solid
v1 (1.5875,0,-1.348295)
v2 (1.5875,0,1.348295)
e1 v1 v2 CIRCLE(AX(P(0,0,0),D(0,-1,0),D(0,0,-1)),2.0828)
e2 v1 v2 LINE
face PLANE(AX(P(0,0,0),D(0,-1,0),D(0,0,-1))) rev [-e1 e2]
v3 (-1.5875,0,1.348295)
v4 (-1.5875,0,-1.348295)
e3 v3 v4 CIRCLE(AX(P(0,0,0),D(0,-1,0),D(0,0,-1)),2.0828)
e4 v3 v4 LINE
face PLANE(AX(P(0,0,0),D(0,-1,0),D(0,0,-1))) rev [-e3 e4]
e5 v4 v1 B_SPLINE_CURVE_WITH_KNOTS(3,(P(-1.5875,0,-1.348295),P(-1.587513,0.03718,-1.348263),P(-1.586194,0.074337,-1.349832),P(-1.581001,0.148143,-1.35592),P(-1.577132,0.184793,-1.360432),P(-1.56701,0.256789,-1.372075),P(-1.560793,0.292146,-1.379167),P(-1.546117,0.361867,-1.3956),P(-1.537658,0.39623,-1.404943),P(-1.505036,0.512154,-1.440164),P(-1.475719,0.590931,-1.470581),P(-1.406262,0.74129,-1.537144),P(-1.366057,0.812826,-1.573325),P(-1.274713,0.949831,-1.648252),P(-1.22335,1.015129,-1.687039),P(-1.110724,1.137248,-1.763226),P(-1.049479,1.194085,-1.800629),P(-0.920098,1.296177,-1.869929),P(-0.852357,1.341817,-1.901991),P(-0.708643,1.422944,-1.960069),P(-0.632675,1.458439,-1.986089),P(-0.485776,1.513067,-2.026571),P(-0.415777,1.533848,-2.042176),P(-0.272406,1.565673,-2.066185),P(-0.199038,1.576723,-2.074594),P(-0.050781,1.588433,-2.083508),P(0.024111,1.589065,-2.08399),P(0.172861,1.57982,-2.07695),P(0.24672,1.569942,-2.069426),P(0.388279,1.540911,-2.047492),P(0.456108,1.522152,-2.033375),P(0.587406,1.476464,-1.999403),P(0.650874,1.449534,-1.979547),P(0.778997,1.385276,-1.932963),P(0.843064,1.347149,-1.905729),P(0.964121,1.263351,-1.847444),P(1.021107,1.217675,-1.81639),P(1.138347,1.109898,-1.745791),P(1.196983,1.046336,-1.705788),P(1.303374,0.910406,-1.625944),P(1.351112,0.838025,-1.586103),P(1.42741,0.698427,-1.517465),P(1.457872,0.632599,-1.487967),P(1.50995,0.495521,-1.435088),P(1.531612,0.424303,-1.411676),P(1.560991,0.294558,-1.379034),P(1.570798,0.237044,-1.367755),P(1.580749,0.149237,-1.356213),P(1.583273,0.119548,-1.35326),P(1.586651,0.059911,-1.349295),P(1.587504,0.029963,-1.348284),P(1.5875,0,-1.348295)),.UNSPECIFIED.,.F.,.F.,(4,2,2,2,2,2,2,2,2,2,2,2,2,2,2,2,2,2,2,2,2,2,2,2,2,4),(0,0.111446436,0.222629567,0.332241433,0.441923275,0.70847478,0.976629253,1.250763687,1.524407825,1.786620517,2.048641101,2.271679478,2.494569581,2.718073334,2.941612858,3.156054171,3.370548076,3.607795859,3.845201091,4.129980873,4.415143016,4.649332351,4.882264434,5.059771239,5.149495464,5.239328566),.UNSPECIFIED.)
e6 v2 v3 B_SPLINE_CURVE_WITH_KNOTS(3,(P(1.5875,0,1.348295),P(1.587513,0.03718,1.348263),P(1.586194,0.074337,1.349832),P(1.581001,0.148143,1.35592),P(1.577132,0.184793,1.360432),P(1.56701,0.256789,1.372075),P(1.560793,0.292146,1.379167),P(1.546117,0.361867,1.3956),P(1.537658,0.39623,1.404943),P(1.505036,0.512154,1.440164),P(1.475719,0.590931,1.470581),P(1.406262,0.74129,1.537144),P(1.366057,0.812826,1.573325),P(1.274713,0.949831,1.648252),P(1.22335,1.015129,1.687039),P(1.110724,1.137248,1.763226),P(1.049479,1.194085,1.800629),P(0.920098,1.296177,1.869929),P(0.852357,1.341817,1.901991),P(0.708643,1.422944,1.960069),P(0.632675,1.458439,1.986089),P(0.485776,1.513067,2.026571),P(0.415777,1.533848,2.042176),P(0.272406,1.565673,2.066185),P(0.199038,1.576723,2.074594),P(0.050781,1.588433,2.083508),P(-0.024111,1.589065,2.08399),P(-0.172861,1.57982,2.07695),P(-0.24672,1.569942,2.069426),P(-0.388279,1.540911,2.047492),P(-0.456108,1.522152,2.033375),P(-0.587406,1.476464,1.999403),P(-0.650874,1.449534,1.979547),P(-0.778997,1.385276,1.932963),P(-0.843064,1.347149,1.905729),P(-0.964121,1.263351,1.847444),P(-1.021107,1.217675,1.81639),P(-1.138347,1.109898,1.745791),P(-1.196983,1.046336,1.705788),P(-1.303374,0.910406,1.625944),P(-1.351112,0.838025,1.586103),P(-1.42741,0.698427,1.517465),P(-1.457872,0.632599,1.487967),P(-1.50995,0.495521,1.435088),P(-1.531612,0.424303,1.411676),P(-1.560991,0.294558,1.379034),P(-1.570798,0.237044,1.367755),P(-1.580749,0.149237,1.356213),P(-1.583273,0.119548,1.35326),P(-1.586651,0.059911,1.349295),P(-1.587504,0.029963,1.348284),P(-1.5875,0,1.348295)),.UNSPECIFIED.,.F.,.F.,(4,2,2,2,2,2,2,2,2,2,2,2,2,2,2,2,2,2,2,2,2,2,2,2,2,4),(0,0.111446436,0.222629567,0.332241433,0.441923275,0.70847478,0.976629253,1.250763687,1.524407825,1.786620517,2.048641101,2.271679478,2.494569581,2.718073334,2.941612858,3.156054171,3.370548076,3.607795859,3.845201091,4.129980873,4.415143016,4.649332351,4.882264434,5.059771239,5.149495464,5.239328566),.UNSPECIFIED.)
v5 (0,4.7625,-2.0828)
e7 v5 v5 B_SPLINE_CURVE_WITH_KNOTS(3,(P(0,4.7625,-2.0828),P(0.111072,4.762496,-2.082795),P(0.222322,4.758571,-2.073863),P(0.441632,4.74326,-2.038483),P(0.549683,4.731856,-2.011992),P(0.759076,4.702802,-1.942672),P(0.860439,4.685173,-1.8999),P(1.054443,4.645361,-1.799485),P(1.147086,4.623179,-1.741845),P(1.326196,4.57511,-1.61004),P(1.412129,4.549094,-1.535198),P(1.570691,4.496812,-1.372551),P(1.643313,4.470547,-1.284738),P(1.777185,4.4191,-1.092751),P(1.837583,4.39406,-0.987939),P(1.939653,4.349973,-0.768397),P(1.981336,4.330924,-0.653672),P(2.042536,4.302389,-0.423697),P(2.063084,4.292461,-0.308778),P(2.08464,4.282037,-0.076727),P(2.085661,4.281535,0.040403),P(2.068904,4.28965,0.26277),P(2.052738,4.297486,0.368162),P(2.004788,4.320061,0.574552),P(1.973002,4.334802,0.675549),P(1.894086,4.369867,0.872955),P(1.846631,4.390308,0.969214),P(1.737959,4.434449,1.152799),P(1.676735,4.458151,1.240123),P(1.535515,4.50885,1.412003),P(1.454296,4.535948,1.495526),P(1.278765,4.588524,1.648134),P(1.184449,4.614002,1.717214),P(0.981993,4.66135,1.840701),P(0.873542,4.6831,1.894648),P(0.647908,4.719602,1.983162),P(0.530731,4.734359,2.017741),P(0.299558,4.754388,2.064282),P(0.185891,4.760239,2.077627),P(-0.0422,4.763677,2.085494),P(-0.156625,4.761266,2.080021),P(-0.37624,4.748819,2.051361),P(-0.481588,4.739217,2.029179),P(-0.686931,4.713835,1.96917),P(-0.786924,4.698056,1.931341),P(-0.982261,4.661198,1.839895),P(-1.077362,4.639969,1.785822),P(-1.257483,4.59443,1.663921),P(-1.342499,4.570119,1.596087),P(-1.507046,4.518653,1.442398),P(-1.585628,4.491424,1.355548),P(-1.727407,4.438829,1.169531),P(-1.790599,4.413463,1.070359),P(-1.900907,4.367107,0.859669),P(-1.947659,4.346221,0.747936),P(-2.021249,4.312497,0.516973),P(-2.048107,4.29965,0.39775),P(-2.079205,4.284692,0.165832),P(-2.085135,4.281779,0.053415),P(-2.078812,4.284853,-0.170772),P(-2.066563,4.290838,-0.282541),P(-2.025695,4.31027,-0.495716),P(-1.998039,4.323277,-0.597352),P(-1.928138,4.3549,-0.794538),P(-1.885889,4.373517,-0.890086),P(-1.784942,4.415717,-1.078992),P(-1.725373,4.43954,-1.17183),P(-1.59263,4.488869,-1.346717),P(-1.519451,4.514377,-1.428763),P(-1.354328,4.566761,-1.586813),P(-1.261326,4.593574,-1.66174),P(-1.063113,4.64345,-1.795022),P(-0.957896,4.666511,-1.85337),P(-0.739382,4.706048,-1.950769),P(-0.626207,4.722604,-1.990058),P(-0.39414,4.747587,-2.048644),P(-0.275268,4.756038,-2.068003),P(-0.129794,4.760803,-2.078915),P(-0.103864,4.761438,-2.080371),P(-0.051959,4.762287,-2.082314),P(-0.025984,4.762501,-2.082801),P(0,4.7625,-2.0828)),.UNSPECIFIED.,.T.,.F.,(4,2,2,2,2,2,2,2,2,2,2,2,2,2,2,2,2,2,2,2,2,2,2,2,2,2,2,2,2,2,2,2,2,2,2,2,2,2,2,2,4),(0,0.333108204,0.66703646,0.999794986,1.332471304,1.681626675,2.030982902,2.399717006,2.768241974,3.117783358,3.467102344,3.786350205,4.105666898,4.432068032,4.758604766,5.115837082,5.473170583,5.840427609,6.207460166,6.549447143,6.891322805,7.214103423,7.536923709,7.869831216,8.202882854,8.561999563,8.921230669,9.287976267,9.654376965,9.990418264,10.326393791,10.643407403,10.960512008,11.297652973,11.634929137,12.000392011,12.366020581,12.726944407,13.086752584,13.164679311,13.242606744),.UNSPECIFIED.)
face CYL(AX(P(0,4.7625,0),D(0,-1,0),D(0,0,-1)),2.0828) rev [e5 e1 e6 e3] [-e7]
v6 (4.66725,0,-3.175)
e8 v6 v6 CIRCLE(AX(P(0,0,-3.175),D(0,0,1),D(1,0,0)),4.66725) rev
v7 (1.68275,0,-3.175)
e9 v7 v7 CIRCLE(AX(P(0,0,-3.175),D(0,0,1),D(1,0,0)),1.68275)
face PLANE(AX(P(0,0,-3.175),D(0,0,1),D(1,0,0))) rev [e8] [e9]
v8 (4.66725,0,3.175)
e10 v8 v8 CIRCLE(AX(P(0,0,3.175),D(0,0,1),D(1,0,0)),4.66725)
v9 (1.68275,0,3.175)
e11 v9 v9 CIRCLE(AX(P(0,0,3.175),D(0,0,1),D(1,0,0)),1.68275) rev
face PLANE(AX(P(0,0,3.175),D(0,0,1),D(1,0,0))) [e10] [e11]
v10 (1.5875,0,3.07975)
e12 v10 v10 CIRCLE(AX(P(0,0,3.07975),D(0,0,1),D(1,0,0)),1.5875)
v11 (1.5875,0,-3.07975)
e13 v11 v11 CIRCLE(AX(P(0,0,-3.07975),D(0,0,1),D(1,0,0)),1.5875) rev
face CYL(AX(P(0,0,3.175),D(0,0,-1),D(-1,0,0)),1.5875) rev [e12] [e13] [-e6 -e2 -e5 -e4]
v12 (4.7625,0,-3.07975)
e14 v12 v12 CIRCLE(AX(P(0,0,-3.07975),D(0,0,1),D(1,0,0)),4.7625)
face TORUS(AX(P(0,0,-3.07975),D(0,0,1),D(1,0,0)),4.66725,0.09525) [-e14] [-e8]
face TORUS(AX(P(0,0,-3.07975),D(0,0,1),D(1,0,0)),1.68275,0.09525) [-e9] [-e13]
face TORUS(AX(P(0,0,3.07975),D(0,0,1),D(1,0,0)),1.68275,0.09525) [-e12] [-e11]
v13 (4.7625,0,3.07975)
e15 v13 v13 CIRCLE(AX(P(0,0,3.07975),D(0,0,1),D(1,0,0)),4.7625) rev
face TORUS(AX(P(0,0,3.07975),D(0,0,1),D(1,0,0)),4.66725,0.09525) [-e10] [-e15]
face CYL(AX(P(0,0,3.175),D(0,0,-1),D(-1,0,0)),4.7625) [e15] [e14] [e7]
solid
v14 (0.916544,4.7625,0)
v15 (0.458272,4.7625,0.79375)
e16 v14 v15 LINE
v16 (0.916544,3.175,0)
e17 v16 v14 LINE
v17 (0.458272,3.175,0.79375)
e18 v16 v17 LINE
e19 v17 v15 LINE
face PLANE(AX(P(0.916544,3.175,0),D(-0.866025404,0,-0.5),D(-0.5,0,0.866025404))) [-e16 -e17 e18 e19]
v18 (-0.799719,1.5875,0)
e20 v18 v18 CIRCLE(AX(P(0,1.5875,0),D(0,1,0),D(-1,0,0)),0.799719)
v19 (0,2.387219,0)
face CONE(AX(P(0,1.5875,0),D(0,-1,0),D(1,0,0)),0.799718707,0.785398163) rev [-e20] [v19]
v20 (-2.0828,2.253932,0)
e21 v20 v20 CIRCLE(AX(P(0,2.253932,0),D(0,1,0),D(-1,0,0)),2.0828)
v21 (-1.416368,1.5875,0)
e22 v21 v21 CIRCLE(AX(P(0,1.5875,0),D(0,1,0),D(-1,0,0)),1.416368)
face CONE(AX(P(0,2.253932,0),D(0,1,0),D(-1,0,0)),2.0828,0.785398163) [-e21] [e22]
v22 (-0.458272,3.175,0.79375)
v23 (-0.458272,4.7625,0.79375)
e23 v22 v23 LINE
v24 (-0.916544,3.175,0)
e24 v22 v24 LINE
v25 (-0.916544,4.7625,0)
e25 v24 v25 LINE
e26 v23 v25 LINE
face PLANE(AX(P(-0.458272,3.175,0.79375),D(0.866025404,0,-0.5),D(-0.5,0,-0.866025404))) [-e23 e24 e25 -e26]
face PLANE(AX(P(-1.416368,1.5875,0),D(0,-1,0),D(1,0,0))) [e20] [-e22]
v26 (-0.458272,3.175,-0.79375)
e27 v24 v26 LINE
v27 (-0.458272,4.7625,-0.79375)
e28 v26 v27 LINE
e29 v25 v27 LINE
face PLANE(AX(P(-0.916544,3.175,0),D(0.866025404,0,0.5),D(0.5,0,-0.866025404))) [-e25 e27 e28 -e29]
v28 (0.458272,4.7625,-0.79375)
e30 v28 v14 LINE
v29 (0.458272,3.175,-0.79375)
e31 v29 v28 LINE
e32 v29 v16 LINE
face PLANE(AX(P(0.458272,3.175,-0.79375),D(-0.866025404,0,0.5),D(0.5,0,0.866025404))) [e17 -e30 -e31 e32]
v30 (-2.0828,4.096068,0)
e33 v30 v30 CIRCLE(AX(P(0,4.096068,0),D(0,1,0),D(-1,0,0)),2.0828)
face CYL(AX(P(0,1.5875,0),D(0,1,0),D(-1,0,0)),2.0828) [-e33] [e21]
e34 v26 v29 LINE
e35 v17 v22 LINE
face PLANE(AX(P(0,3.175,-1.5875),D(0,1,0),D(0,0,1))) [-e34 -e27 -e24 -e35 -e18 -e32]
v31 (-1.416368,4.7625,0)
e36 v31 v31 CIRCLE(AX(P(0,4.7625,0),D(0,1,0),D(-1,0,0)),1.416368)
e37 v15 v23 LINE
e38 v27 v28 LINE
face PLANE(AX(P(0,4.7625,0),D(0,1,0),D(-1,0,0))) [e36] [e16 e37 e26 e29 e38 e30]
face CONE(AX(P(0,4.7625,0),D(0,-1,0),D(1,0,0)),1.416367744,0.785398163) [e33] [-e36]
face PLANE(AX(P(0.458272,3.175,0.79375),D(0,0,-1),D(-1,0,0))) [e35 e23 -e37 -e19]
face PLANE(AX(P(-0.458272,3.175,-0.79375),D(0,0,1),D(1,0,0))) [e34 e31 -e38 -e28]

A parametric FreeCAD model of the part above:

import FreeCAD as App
import Part
import Sketcher

V = App.Vector
Q = App.Units.Quantity


def edges_at(feature, points):
    """Names of the edges that pass closest to the given points."""
    edges = feature.Shape.Edges
    near = lambda p: min(range(len(edges)), key=lambda i: edges[i].distToShape(Part.Vertex(*p))[0])
    return sorted({f"Edge{near(p) + 1}" for p in points})

doc = App.newDocument("Part")
body = doc.addObject("PartDesign::Body", "Body")

# Sketch on XY plane
sketch1 = doc.addObject("Sketcher::SketchObject", "Sketch")
body.addObject(sketch1)
sketch1.AttachmentSupport = (doc.XY_Plane, [""])
sketch1.MapMode = "FlatFace"
sketch1.addGeometry([
    Part.Circle(V(0, 0, 0), V(0, 0, 1), 4.8),
    Part.Circle(V(0, 0, 0), V(0, 0, 1), 1.6),
], False)
sketch1.addConstraint([
    Sketcher.Constraint("Coincident", 0, 3, -1, 1),
    Sketcher.Constraint("Coincident", 1, 3, -1, 1),
    Sketcher.Constraint("Diameter", 0, Q("0.375 in")),
    Sketcher.Constraint("Diameter", 1, Q("0.125 in")),
])
pad1 = doc.addObject("PartDesign::Pad", "Pad")
body.addObject(pad1)
pad1.Profile = sketch1
pad1.Length = Q("0.25 in")
pad1.Midplane = True

# Sketch on XZ plane
sketch2 = doc.addObject("Sketcher::SketchObject", "Sketch001")
body.addObject(sketch2)
sketch2.AttachmentSupport = (doc.XZ_Plane, [""])
sketch2.MapMode = "FlatFace"
sketch2.addGeometry(Part.Circle(V(0, 0, 0), V(0, 0, 1), 2.1), False)
sketch2.addConstraint([
    Sketcher.Constraint("Coincident", 0, 3, -1, 1),
    Sketcher.Constraint("Diameter", 0, Q("0.164 in")),
])
pocket1 = doc.addObject("PartDesign::Pocket", "Pocket")
body.addObject(pocket1)
pocket1.Profile = sketch2
pocket1.Type = "ThroughAll"
doc.recompute()

fillet = doc.addObject("PartDesign::Fillet", "Fillet")
body.addObject(fillet)
fillet.Base = (pocket1, edges_at(pocket1, [
    (-4.763, 0, -3.175),
    (-4.763, 0, 3.175),
    (-1.587, 0, -3.175),
    (-1.587, 0, 3.175),
]))
fillet.Radius = 0.09525
body2 = doc.addObject("PartDesign::Body", "Body001")

# Sketch on XY plane
sketch3 = doc.addObject("Sketcher::SketchObject", "Sketch002")
body2.addObject(sketch3)
sketch3.AttachmentSupport = (doc.getObject("XY_Plane001"), [""])
sketch3.MapMode = "FlatFace"
sketch3.addGeometry([
    Part.LineSegment(V(-1.4, 1.6, 0), V(-0.8, 1.6, 0)),  # 0
    Part.LineSegment(V(-0.8, 1.6, 0), V(0, 2.4, 0)),  # 1
    Part.LineSegment(V(0, 2.4, 0), V(0, 4.8, 0)),  # 2
    Part.LineSegment(V(0, 4.8, 0), V(-1.4, 4.8, 0)),  # 3
    Part.LineSegment(V(-1.4, 4.8, 0), V(-2.1, 4.1, 0)),  # 4
    Part.LineSegment(V(-2.1, 4.1, 0), V(-2.1, 2.3, 0)),  # 5
    Part.LineSegment(V(-2.1, 2.3, 0), V(-1.4, 1.6, 0)),  # 6
], False)
sketch3.addConstraint([
    Sketcher.Constraint("Coincident", 0, 2, 1, 1),
    Sketcher.Constraint("Coincident", 1, 2, 2, 1),
    Sketcher.Constraint("Coincident", 2, 2, 3, 1),
    Sketcher.Constraint("Coincident", 3, 2, 4, 1),
    Sketcher.Constraint("Coincident", 4, 2, 5, 1),
    Sketcher.Constraint("Coincident", 5, 2, 6, 1),
    Sketcher.Constraint("Coincident", 6, 2, 0, 1),
    Sketcher.Constraint("Horizontal", 0),
    Sketcher.Constraint("Vertical", 2),
    Sketcher.Constraint("Horizontal", 3),
    Sketcher.Constraint("Vertical", 5),
    Sketcher.Constraint("PointOnObject", 1, 2, -2),
    Sketcher.Constraint("Parallel", 1, 4),
    Sketcher.Constraint("Perpendicular", 4, 6),
    Sketcher.Constraint("Vertical", 3, 2, 6, 2),
    Sketcher.Constraint("Equal", 4, 6),
    Sketcher.Constraint("DistanceY", -1, 1, 0, 2, Q("0.0625 in")),
    Sketcher.Constraint("DistanceY", -1, 1, 2, 2, Q("0.1875 in")),
    Sketcher.Constraint("DistanceX", 4, 2, -1, 1, Q("0.082 in")),
    Sketcher.Constraint("DistanceX", 0, 1, 0, 2, 0.616649),
    Sketcher.Constraint("DistanceY", 2, 1, 2, 2, 2.375281),
])
revolution = doc.addObject("PartDesign::Revolution", "Revolution")
body2.addObject(revolution)
revolution.Profile = sketch3
revolution.ReferenceAxis = (sketch3, ["V_Axis"])
revolution.Angle = 360

# Sketch on XZ plane
sketch4 = doc.addObject("Sketcher::SketchObject", "Sketch003")
body2.addObject(sketch4)
sketch4.AttachmentSupport = (doc.getObject("XZ_Plane001"), [""])
sketch4.MapMode = "FlatFace"
sketch4.AttachmentOffset = App.Placement(V(0, 0, -0.1875 * 25.4), App.Rotation())
sketch4.addGeometry([
    Part.LineSegment(V(0.9, 0, 0), V(0.5, 0.8, 0)),  # 0
    Part.LineSegment(V(0.5, 0.8, 0), V(-0.5, 0.8, 0)),  # 1
    Part.LineSegment(V(-0.5, 0.8, 0), V(-0.9, 0, 0)),  # 2
    Part.LineSegment(V(-0.9, 0, 0), V(-0.5, -0.8, 0)),  # 3
    Part.LineSegment(V(-0.5, -0.8, 0), V(0.5, -0.8, 0)),  # 4
    Part.LineSegment(V(0.5, -0.8, 0), V(0.9, 0, 0)),  # 5
], False)
sketch4.addConstraint([
    Sketcher.Constraint("Coincident", 0, 2, 1, 1),
    Sketcher.Constraint("Coincident", 1, 2, 2, 1),
    Sketcher.Constraint("Coincident", 2, 2, 3, 1),
    Sketcher.Constraint("Coincident", 3, 2, 4, 1),
    Sketcher.Constraint("Coincident", 4, 2, 5, 1),
    Sketcher.Constraint("Coincident", 5, 2, 0, 1),
    Sketcher.Constraint("Horizontal", 1),
    Sketcher.Constraint("Horizontal", 4),
    Sketcher.Constraint("Symmetric", 0, 2, 3, 2, -1, 1),
    Sketcher.Constraint("Symmetric", 2, 2, 5, 2, -1, 1),
    Sketcher.Constraint("PointOnObject", 2, 2, -1),
    Sketcher.Constraint("Parallel", 2, 5),
    Sketcher.Constraint("Vertical", 1, 2, 3, 2),
    Sketcher.Constraint("Angle", 0, Q("120 deg")),
    Sketcher.Constraint("DistanceY", -1, 1, 0, 2, Q("0.03125 in")),
    Sketcher.Constraint("DistanceX", 1, 2, 1, 1, 0.916544),
])
pocket2 = doc.addObject("PartDesign::Pocket", "Pocket001")
body2.addObject(pocket2)
pocket2.Profile = sketch4
pocket2.Length = Q("0.0625 in")
pocket2.Reversed = True

doc.recompute()
